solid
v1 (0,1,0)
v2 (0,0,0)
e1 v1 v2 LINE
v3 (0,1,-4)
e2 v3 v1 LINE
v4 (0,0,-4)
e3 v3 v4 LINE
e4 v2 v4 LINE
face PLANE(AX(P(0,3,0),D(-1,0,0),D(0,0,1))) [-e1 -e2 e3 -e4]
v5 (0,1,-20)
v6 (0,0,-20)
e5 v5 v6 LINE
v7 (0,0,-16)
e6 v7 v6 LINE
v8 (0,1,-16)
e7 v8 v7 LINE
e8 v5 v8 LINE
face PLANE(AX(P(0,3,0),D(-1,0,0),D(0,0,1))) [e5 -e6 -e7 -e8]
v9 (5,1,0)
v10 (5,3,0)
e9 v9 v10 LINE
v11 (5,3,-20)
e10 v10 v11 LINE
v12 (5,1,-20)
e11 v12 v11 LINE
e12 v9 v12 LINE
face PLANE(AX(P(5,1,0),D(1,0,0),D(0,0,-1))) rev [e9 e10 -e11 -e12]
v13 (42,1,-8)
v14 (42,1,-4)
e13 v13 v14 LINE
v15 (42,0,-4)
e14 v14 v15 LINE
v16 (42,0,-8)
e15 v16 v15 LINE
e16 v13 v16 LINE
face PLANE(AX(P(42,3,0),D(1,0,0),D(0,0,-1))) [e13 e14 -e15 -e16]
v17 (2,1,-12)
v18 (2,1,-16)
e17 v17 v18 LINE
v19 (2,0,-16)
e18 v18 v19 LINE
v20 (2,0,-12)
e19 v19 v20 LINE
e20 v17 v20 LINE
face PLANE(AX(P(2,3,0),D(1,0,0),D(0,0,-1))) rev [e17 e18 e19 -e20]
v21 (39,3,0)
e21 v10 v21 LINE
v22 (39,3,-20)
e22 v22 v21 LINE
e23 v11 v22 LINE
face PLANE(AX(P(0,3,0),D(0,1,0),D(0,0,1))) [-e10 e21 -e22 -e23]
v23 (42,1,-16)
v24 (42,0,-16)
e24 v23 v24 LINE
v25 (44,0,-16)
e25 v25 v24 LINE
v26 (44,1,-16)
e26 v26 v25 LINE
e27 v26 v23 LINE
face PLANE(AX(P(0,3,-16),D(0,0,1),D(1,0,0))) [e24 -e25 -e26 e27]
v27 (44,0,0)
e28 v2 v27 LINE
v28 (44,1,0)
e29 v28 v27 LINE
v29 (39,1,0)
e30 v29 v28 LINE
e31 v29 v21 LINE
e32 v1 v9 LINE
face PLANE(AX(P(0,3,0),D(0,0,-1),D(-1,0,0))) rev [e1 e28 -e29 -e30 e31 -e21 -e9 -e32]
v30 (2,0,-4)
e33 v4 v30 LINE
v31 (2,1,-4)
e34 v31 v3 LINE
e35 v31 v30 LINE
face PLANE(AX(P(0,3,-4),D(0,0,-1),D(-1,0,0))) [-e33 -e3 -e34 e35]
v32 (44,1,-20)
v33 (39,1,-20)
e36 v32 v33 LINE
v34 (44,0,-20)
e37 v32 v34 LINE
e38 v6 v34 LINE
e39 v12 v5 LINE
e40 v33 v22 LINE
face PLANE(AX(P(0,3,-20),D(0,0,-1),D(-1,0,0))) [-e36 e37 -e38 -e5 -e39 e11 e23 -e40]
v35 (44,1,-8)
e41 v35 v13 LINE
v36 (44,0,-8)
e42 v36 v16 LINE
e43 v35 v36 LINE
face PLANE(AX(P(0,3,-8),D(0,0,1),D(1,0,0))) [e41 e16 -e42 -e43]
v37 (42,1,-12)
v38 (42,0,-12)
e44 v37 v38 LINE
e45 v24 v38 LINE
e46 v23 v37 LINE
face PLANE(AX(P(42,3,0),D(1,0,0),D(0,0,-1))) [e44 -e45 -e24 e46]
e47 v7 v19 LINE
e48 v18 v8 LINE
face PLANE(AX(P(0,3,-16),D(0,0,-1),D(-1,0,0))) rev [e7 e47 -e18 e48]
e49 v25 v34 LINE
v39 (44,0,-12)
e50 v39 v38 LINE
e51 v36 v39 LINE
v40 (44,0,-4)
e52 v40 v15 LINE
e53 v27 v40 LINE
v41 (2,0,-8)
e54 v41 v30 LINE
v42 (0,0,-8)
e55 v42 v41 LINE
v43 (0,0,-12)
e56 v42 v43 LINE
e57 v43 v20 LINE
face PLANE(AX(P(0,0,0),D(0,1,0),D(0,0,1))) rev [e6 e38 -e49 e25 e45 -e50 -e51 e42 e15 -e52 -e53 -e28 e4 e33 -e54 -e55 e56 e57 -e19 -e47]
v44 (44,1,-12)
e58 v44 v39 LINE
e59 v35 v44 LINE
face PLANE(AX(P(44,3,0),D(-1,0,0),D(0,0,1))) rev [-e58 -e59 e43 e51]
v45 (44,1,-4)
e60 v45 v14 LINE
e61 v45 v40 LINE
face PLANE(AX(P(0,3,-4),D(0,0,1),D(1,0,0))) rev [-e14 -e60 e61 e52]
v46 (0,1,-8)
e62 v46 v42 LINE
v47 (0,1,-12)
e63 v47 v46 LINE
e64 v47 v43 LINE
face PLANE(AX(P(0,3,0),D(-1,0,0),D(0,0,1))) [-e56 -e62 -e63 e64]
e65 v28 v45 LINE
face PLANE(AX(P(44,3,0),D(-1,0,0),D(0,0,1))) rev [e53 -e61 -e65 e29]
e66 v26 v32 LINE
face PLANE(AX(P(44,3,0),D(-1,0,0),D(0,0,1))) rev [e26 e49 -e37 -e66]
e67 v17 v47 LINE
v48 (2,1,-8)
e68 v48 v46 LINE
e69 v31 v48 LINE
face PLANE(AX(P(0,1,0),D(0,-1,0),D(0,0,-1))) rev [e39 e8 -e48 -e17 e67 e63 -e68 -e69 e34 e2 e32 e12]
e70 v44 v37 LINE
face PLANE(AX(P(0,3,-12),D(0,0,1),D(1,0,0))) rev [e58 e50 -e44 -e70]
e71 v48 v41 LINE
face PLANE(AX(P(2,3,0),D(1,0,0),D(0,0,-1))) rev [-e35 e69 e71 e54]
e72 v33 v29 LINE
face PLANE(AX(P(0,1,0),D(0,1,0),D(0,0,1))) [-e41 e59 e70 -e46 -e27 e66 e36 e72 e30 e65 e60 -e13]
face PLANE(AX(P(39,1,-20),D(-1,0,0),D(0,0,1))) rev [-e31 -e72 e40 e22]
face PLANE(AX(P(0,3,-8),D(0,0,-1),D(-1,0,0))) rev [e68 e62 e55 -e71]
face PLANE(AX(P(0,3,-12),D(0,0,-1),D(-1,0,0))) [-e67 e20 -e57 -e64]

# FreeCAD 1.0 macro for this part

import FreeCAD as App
import Part
import Sketcher
Q = App.Units.Quantity

doc = App.newDocument("Part")
body = doc.addObject("PartDesign::Body", "Body")

# Sketch on XZ plane
sketch1 = body.newObject("Sketcher::SketchObject", "Sketch")
sketch1.AttachmentSupport = (doc.getObject("XZ_Plane"), [""])
sketch1.MapMode = "FlatFace"
sketch1.addGeometry([
    Part.LineSegment(App.Vector(0, -4, 0), App.Vector(0, 0, 0)),  # 0
    Part.LineSegment(App.Vector(0, 0, 0), App.Vector(44, 0, 0)),  # 1
    Part.LineSegment(App.Vector(44, 0, 0), App.Vector(44, -4, 0)),  # 2
    Part.LineSegment(App.Vector(44, -4, 0), App.Vector(42, -4, 0)),  # 3
    Part.LineSegment(App.Vector(42, -4, 0), App.Vector(42, -8, 0)),  # 4
    Part.LineSegment(App.Vector(42, -8, 0), App.Vector(44, -8, 0)),  # 5
    Part.LineSegment(App.Vector(44, -8, 0), App.Vector(44, -12, 0)),  # 6
    Part.LineSegment(App.Vector(44, -12, 0), App.Vector(42, -12, 0)),  # 7
    Part.LineSegment(App.Vector(42, -12, 0), App.Vector(42, -16, 0)),  # 8
    Part.LineSegment(App.Vector(42, -16, 0), App.Vector(44, -16, 0)),  # 9
    Part.LineSegment(App.Vector(44, -16, 0), App.Vector(44, -20, 0)),  # 10
    Part.LineSegment(App.Vector(44, -20, 0), App.Vector(0, -20, 0)),  # 11
    Part.LineSegment(App.Vector(0, -20, 0), App.Vector(0, -16, 0)),  # 12
    Part.LineSegment(App.Vector(0, -16, 0), App.Vector(2, -16, 0)),  # 13
    Part.LineSegment(App.Vector(2, -16, 0), App.Vector(2, -12, 0)),  # 14
    Part.LineSegment(App.Vector(2, -12, 0), App.Vector(0, -12, 0)),  # 15
    Part.LineSegment(App.Vector(0, -12, 0), App.Vector(0, -8, 0)),  # 16
    Part.LineSegment(App.Vector(0, -8, 0), App.Vector(2, -8, 0)),  # 17
    Part.LineSegment(App.Vector(2, -8, 0), App.Vector(2, -4, 0)),  # 18
    Part.LineSegment(App.Vector(2, -4, 0), App.Vector(0, -4, 0)),  # 19
], False)
sketch1.addConstraint([
    Sketcher.Constraint("Coincident", 0, 2, 1, 1),
    Sketcher.Constraint("Coincident", 1, 2, 2, 1),
    Sketcher.Constraint("Coincident", 2, 2, 3, 1),
    Sketcher.Constraint("Coincident", 3, 2, 4, 1),
    Sketcher.Constraint("Coincident", 4, 2, 5, 1),
    Sketcher.Constraint("Coincident", 5, 2, 6, 1),
    Sketcher.Constraint("Coincident", 6, 2, 7, 1),
    Sketcher.Constraint("Coincident", 7, 2, 8, 1),
    Sketcher.Constraint("Coincident", 8, 2, 9, 1),
    Sketcher.Constraint("Coincident", 9, 2, 10, 1),
    Sketcher.Constraint("Coincident", 10, 2, 11, 1),
    Sketcher.Constraint("Coincident", 11, 2, 12, 1),
    Sketcher.Constraint("Coincident", 12, 2, 13, 1),
    Sketcher.Constraint("Coincident", 13, 2, 14, 1),
    Sketcher.Constraint("Coincident", 14, 2, 15, 1),
    Sketcher.Constraint("Coincident", 15, 2, 16, 1),
    Sketcher.Constraint("Coincident", 16, 2, 17, 1),
    Sketcher.Constraint("Coincident", 17, 2, 18, 1),
    Sketcher.Constraint("Coincident", 18, 2, 19, 1),
    Sketcher.Constraint("Coincident", 19, 2, 0, 1),
    Sketcher.Constraint("Vertical", 0),
    Sketcher.Constraint("Horizontal", 1),
    Sketcher.Constraint("Vertical", 2),
    Sketcher.Constraint("Horizontal", 3),
    Sketcher.Constraint("Vertical", 4),
    Sketcher.Constraint("Horizontal", 5),
    Sketcher.Constraint("Vertical", 6),
    Sketcher.Constraint("Horizontal", 7),
    Sketcher.Constraint("Vertical", 8),
    Sketcher.Constraint("Horizontal", 9),
    Sketcher.Constraint("Vertical", 10),
    Sketcher.Constraint("Horizontal", 11),
    Sketcher.Constraint("Vertical", 12),
    Sketcher.Constraint("Horizontal", 13),
    Sketcher.Constraint("Vertical", 14),
    Sketcher.Constraint("Horizontal", 15),
    Sketcher.Constraint("Vertical", 16),
    Sketcher.Constraint("Horizontal", 17),
    Sketcher.Constraint("Vertical", 18),
    Sketcher.Constraint("Horizontal", 19),
    Sketcher.Constraint("Coincident", 0, 2, -1, 1),
    Sketcher.Constraint("PointOnObject", 11, 2, -2),
    Sketcher.Constraint("PointOnObject", 15, 2, -2),
    Sketcher.Constraint("Horizontal", 9, 2, 12, 2),
    Sketcher.Constraint("Horizontal", 7, 2, 14, 2),
    Sketcher.Constraint("Horizontal", 5, 2, 16, 2),
    Sketcher.Constraint("Horizontal", 3, 2, 18, 2),
    Sketcher.Constraint("Vertical", 2, 2, 5, 2),
    Sketcher.Constraint("Vertical", 4, 2, 7, 2),
    Sketcher.Constraint("Vertical", 6, 2, 9, 2),
    Sketcher.Constraint("Vertical", 14, 2, 17, 2),
    Sketcher.Constraint("Equal", 9, 13),
    Sketcher.Constraint("Equal", 2, 4),
    Sketcher.Constraint("Equal", 4, 6),
    Sketcher.Constraint("Equal", 6, 8),
    Sketcher.Constraint("Equal", 8, 10),
    Sketcher.Constraint("DistanceX", 1, 1, 1, 2, Q("44 mm")),
    Sketcher.Constraint("DistanceX", 3, 2, 3, 1, Q("2 mm")),
    Sketcher.Constraint("DistanceY", 0, 1, 0, 2, Q("4 mm")),
])
pad1 = body.newObject("PartDesign::Pad", "Pad")
pad1.Profile = sketch1
pad1.Length = 3
pad1.Reversed = True

# Sketch on XZ plane
sketch2 = body.newObject("Sketcher::SketchObject", "Sketch001")
sketch2.AttachmentSupport = (doc.getObject("XZ_Plane"), [""])
sketch2.MapMode = "FlatFace"
sketch2.AttachmentOffset = App.Placement(App.Vector(0, 0, -3), App.Rotation())
sketch2.addGeometry([
    Part.LineSegment(App.Vector(39, -20, 0), App.Vector(39, 0, 0)),  # 0
    Part.LineSegment(App.Vector(39, 0, 0), App.Vector(44, 0, 0)),  # 1
    Part.LineSegment(App.Vector(44, 0, 0), App.Vector(44, -20, 0)),  # 2
    Part.LineSegment(App.Vector(44, -20, 0), App.Vector(39, -20, 0)),  # 3
    Part.LineSegment(App.Vector(0, -20, 0), App.Vector(0, 0, 0)),  # 4
    Part.LineSegment(App.Vector(0, 0, 0), App.Vector(5, 0, 0)),  # 5
    Part.LineSegment(App.Vector(5, 0, 0), App.Vector(5, -20, 0)),  # 6
    Part.LineSegment(App.Vector(5, -20, 0), App.Vector(0, -20, 0)),  # 7
], False)
sketch2.addConstraint([
    Sketcher.Constraint("Coincident", 0, 2, 1, 1),
    Sketcher.Constraint("Coincident", 1, 2, 2, 1),
    Sketcher.Constraint("Coincident", 2, 2, 3, 1),
    Sketcher.Constraint("Coincident", 3, 2, 0, 1),
    Sketcher.Constraint("Coincident", 4, 2, 5, 1),
    Sketcher.Constraint("Coincident", 5, 2, 6, 1),
    Sketcher.Constraint("Coincident", 6, 2, 7, 1),
    Sketcher.Constraint("Coincident", 7, 2, 4, 1),
    Sketcher.Constraint("Vertical", 0),
    Sketcher.Constraint("Horizontal", 1),
    Sketcher.Constraint("Vertical", 2),
    Sketcher.Constraint("Horizontal", 3),
    Sketcher.Constraint("Vertical", 4),
    Sketcher.Constraint("Horizontal", 5),
    Sketcher.Constraint("Vertical", 6),
    Sketcher.Constraint("Horizontal", 7),
    Sketcher.Constraint("Coincident", 4, 2, -1, 1),
    Sketcher.Constraint("PointOnObject", 0, 2, -1),
    Sketcher.Constraint("Horizontal", 3, 2, 6, 2),
    Sketcher.Constraint("Equal", 3, 5),
    Sketcher.Constraint("DistanceX", 1, 1, 1, 2, Q("5 mm")),
    Sketcher.Constraint("DistanceY", 0, 1, 0, 2, Q("20 mm")),
    Sketcher.Constraint("DistanceX", -1, 1, 0, 2, Q("39 mm")),
])
pocket1 = body.newObject("PartDesign::Pocket", "Pocket")
pocket1.Profile = sketch2
pocket1.Length = 2
pocket1.Reversed = True

doc.recompute()
